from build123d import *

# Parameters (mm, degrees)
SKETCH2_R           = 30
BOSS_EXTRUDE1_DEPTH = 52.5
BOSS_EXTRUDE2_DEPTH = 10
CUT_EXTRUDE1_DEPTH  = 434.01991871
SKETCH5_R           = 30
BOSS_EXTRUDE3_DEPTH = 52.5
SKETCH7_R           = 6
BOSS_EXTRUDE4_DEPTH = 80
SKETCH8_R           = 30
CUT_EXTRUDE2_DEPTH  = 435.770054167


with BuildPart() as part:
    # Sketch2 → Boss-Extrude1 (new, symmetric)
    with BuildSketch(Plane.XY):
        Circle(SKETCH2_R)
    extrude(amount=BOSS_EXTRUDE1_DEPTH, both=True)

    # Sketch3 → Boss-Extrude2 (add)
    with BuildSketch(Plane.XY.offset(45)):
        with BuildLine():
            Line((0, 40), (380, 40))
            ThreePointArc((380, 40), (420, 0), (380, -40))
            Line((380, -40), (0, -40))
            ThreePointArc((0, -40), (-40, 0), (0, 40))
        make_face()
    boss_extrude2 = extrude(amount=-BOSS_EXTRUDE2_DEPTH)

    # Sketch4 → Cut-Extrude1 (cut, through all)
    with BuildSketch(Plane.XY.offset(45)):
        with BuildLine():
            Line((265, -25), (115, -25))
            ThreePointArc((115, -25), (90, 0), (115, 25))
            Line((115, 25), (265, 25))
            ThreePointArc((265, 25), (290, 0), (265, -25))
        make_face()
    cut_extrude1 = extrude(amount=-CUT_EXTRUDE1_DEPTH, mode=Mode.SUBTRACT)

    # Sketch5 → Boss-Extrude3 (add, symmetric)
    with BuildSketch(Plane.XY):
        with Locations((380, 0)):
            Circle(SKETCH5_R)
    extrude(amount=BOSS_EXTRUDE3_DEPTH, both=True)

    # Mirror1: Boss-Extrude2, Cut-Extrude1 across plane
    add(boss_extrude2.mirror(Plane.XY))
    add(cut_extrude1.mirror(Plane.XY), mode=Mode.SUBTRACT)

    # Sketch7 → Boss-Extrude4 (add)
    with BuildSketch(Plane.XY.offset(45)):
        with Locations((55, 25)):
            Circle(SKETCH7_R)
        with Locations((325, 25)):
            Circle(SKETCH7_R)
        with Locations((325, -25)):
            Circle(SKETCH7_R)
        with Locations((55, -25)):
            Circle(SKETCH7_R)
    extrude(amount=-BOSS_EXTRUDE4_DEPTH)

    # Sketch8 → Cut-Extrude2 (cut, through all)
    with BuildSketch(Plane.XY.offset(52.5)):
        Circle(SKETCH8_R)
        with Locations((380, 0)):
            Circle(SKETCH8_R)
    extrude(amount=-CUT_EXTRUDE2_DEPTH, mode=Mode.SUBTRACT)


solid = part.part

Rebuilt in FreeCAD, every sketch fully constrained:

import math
import FreeCAD as App
import Part
import Sketcher
from FreeCAD import Vector

doc = App.newDocument("Part")
params = doc.addObject("Spreadsheet::Sheet", "Params")
for row, (alias, value) in enumerate([
    ("sketch1_diameter", "60 mm"),
    ("pad1_length", "105 mm"),
    ("sketch2_radius", "40 mm"),
    ("sketch2_width", "380 mm"),
    ("pad2_length", "10 mm"),
    ("sketch3_radius", "25 mm"),
    ("sketch3_width", "150 mm"),
    ("sketch4_diameter", "60 mm"),
    ("pad3_length", "105 mm"),
    ("sketch5_diameter", "12 mm"),
    ("pad4_length", "80 mm"),
    ("sketch6_diameter", "60 mm"),
], start=1):
    params.set(f"A{row}", alias)
    params.set(f"B{row}", "=" + value)
    params.setAlias(f"B{row}", alias)

body = doc.addObject("PartDesign::Body", "Body")

# Sketch on XY plane
sketch1 = body.newObject("Sketcher::SketchObject", "Sketch")
sketch1.AttachmentSupport = (doc.getObject("XY_Plane"), [""])
sketch1.MapMode = "FlatFace"
sketch1.addGeometry(Part.Circle(Vector(0, 0, 0), Vector(0, 0, 1), 30), False)
sketch1.addConstraint(Sketcher.Constraint("Coincident", 0, 3, -1, 1))
sketch1.addConstraint(Sketcher.Constraint("Diameter", 0, 60.0))
sketch1.setExpression("Constraints[1]", "Params.sketch1_diameter")
pad1 = body.newObject("PartDesign::Pad", "Pad")
pad1.Profile = sketch1
pad1.setExpression("Length", "Params.pad1_length")
pad1.Midplane = True

# Sketch on XY plane
sketch2 = body.newObject("Sketcher::SketchObject", "Sketch001")
sketch2.AttachmentSupport = (doc.getObject("XY_Plane"), [""])
sketch2.MapMode = "FlatFace"
sketch2.AttachmentOffset = App.Placement(Vector(0, 0, 45), App.Rotation())
sketch2.addGeometry(Part.LineSegment(Vector(380, 40, 0), Vector(0, 40, 0)), False)
sketch2.addGeometry(Part.ArcOfCircle(Part.Circle(Vector(0, 0, 0), Vector(0, 0, 1), 40), math.radians(90), math.radians(270)), False)
sketch2.addGeometry(Part.LineSegment(Vector(0, -40, 0), Vector(380, -40, 0)), False)
sketch2.addGeometry(Part.ArcOfCircle(Part.Circle(Vector(380, 0, 0), Vector(0, 0, 1), 40), math.radians(-90), math.radians(90)), False)
sketch2.addConstraint(Sketcher.Constraint("Tangent", 0, 2, 1, 1))
sketch2.addConstraint(Sketcher.Constraint("Tangent", 1, 2, 2, 1))
sketch2.addConstraint(Sketcher.Constraint("Tangent", 2, 2, 3, 1))
sketch2.addConstraint(Sketcher.Constraint("Tangent", 3, 2, 0, 1))
sketch2.addConstraint(Sketcher.Constraint("Horizontal", 0))
sketch2.addConstraint(Sketcher.Constraint("Horizontal", 2))
sketch2.addConstraint(Sketcher.Constraint("Coincident", 1, 3, -1, 1))
sketch2.addConstraint(Sketcher.Constraint("Radius", 1, 40.0))
sketch2.addConstraint(Sketcher.Constraint("DistanceX", 0, 2, 0, 1, 380.0))
sketch2.setExpression("Constraints[7]", "Params.sketch2_radius")
sketch2.setExpression("Constraints[8]", "Params.sketch2_width")
pad2 = body.newObject("PartDesign::Pad", "Pad001")
pad2.Profile = sketch2
pad2.setExpression("Length", "Params.pad2_length")
pad2.Reversed = True

# Sketch on XY plane
sketch3 = body.newObject("Sketcher::SketchObject", "Sketch002")
sketch3.AttachmentSupport = (doc.getObject("XY_Plane"), [""])
sketch3.MapMode = "FlatFace"
sketch3.AttachmentOffset = App.Placement(Vector(0, 0, 45), App.Rotation())
sketch3.addGeometry(Part.LineSegment(Vector(115, -25, 0), Vector(265, -25, 0)), False)
sketch3.addGeometry(Part.ArcOfCircle(Part.Circle(Vector(265, 0, 0), Vector(0, 0, 1), 25), math.radians(-90), math.radians(90)), False)
sketch3.addGeometry(Part.LineSegment(Vector(265, 25, 0), Vector(115, 25, 0)), False)
sketch3.addGeometry(Part.ArcOfCircle(Part.Circle(Vector(115, 0, 0), Vector(0, 0, 1), 25), math.radians(90), math.radians(270)), False)
sketch3.addConstraint(Sketcher.Constraint("Tangent", 0, 2, 1, 1))
sketch3.addConstraint(Sketcher.Constraint("Tangent", 1, 2, 2, 1))
sketch3.addConstraint(Sketcher.Constraint("Tangent", 2, 2, 3, 1))
sketch3.addConstraint(Sketcher.Constraint("Tangent", 3, 2, 0, 1))
sketch3.addConstraint(Sketcher.Constraint("Horizontal", 0))
sketch3.addConstraint(Sketcher.Constraint("Horizontal", 2))
sketch3.addConstraint(Sketcher.Constraint("PointOnObject", 1, 3, -1))
sketch3.addConstraint(Sketcher.Constraint("Radius", 1, 25.0))
sketch3.addConstraint(Sketcher.Constraint("DistanceX", 0, 1, 0, 2, 150.0))
sketch3.addConstraint(Sketcher.Constraint("DistanceX", -1, 1, 1, 3, 265.0))
sketch3.setExpression("Constraints[7]", "Params.sketch3_radius")
sketch3.setExpression("Constraints[8]", "Params.sketch3_width")
pocket1 = body.newObject("PartDesign::Pocket", "Pocket")
pocket1.Profile = sketch3
pocket1.Type = "ThroughAll"

# Sketch on XY plane
sketch4 = body.newObject("Sketcher::SketchObject", "Sketch003")
sketch4.AttachmentSupport = (doc.getObject("XY_Plane"), [""])
sketch4.MapMode = "FlatFace"
sketch4.addGeometry(Part.Circle(Vector(380, 0, 0), Vector(0, 0, 1), 30), False)
sketch4.addConstraint(Sketcher.Constraint("PointOnObject", 0, 3, -1))
sketch4.addConstraint(Sketcher.Constraint("Diameter", 0, 60.0))
sketch4.addConstraint(Sketcher.Constraint("DistanceX", -1, 1, 0, 3, 380.0))
sketch4.setExpression("Constraints[1]", "Params.sketch4_diameter")
pad3 = body.newObject("PartDesign::Pad", "Pad002")
pad3.Profile = sketch4
pad3.setExpression("Length", "Params.pad3_length")
pad3.Midplane = True
doc.recompute()

mirrored = body.newObject("PartDesign::Mirrored", "Mirrored")
mirrored.Originals = [pad2, pocket1]
mirrored.MirrorPlane = (doc.getObject("XY_Plane"), [""])
body.Tip = mirrored

# Sketch on XY plane
sketch5 = body.newObject("Sketcher::SketchObject", "Sketch004")
sketch5.AttachmentSupport = (doc.getObject("XY_Plane"), [""])
sketch5.MapMode = "FlatFace"
sketch5.AttachmentOffset = App.Placement(Vector(0, 0, 45), App.Rotation())
sketch5.addGeometry(Part.Circle(Vector(55, 25, 0), Vector(0, 0, 1), 6), False)
sketch5.addGeometry(Part.Circle(Vector(325, 25, 0), Vector(0, 0, 1), 6), False)
sketch5.addGeometry(Part.Circle(Vector(325, -25, 0), Vector(0, 0, 1), 6), False)
sketch5.addGeometry(Part.Circle(Vector(55, -25, 0), Vector(0, 0, 1), 6), False)
sketch5.addConstraint(Sketcher.Constraint("Equal", 0, 1))
sketch5.addConstraint(Sketcher.Constraint("Equal", 1, 2))
sketch5.addConstraint(Sketcher.Constraint("Equal", 2, 3))
sketch5.addConstraint(Sketcher.Constraint("Symmetric", 1, 3, 2, 3, -1))
sketch5.addConstraint(Sketcher.Constraint("Symmetric", 0, 3, 3, 3, -1))
sketch5.addConstraint(Sketcher.Constraint("Horizontal", 0, 3, 1, 3))
sketch5.addConstraint(Sketcher.Constraint("Diameter", 0, 12.0))
sketch5.addConstraint(Sketcher.Constraint("DistanceX", -1, 1, 0, 3, 55.0))
sketch5.addConstraint(Sketcher.Constraint("DistanceY", -1, 1, 0, 3, 25.0))
sketch5.addConstraint(Sketcher.Constraint("DistanceX", -1, 1, 1, 3, 325.0))
sketch5.setExpression("Constraints[6]", "Params.sketch5_diameter")
pad4 = body.newObject("PartDesign::Pad", "Pad003")
pad4.Profile = sketch5
pad4.setExpression("Length", "Params.pad4_length")
pad4.Reversed = True

# Sketch on XY plane
sketch6 = body.newObject("Sketcher::SketchObject", "Sketch005")
sketch6.AttachmentSupport = (doc.getObject("XY_Plane"), [""])
sketch6.MapMode = "FlatFace"
sketch6.AttachmentOffset = App.Placement(Vector(0, 0, 52.5), App.Rotation())
sketch6.addGeometry(Part.Circle(Vector(0, 0, 0), Vector(0, 0, 1), 30), False)
sketch6.addGeometry(Part.Circle(Vector(380, 0, 0), Vector(0, 0, 1), 30), False)
sketch6.addConstraint(Sketcher.Constraint("Coincident", 0, 3, -1, 1))
sketch6.addConstraint(Sketcher.Constraint("Equal", 0, 1))
sketch6.addConstraint(Sketcher.Constraint("PointOnObject", 1, 3, -1))
sketch6.addConstraint(Sketcher.Constraint("Diameter", 0, 60.0))
sketch6.addConstraint(Sketcher.Constraint("DistanceX", -1, 1, 1, 3, 380.0))
sketch6.setExpression("Constraints[3]", "Params.sketch6_diameter")
pocket2 = body.newObject("PartDesign::Pocket", "Pocket001")
pocket2.Profile = sketch6
pocket2.Type = "ThroughAll"

doc.recompute()
